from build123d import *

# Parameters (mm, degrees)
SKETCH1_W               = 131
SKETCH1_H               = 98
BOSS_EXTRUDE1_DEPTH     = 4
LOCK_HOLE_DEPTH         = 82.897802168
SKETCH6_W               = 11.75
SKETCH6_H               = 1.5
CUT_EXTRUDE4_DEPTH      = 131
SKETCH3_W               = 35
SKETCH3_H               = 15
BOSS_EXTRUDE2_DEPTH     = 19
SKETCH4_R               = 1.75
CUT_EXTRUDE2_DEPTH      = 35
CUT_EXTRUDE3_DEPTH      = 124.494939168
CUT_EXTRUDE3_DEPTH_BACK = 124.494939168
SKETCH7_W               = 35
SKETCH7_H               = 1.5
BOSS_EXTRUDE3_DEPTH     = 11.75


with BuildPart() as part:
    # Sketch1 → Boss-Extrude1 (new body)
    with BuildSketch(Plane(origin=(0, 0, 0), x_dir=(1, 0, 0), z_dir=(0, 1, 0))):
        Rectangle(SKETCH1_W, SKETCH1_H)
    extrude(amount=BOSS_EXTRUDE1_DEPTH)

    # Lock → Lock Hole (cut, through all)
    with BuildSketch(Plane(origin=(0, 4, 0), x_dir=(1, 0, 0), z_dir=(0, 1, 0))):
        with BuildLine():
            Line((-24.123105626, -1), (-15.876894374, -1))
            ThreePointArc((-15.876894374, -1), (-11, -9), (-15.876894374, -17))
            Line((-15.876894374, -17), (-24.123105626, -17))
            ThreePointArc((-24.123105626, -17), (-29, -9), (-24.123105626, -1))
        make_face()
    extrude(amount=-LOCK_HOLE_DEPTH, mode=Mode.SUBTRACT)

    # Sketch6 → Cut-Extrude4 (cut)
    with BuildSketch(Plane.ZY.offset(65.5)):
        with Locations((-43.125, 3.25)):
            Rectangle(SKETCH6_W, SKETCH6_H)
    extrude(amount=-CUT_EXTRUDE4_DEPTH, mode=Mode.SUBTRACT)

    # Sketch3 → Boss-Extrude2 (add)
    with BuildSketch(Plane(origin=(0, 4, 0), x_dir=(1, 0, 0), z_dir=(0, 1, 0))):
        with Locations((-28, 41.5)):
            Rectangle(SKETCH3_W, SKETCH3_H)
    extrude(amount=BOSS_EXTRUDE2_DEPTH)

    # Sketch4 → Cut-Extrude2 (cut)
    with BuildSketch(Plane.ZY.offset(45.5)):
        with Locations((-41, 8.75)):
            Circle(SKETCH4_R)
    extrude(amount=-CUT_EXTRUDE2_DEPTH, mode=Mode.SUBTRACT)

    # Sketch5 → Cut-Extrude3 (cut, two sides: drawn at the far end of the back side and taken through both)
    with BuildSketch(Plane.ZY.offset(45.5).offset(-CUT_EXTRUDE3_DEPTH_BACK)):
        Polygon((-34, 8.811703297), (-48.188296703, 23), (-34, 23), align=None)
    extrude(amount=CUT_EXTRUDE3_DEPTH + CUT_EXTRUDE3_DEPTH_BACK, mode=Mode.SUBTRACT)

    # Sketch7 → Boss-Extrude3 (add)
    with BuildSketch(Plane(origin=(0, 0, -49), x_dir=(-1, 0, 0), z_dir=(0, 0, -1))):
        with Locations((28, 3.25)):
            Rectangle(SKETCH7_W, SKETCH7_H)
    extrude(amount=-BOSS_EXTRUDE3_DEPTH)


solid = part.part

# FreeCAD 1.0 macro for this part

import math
import FreeCAD as App
import Part
import Sketcher

doc = App.newDocument("Part")
body = doc.addObject("PartDesign::Body", "Body")

sketch1 = body.newObject("Sketcher::SketchObject", "Sketch")
sketch1.AttachmentSupport = (doc.getObject("XZ_Plane"), [""])
sketch1.MapMode = "FlatFace"
sketch1.addGeometry([
    Part.LineSegment(App.Vector(-66, -49, 0), App.Vector(-66, 49, 0)),
    Part.LineSegment(App.Vector(-66, 49, 0), App.Vector(66, 49, 0)),
    Part.LineSegment(App.Vector(66, 49, 0), App.Vector(66, -49, 0)),
    Part.LineSegment(App.Vector(66, -49, 0), App.Vector(-66, -49, 0)),
], False)
sketch1.addConstraint([
    Sketcher.Constraint("Coincident", 0, 2, 1, 1),
    Sketcher.Constraint("Coincident", 1, 2, 2, 1),
    Sketcher.Constraint("Coincident", 2, 2, 3, 1),
    Sketcher.Constraint("Coincident", 3, 2, 0, 1),
    Sketcher.Constraint("Vertical", 0),
    Sketcher.Constraint("Horizontal", 1),
    Sketcher.Constraint("Vertical", 2),
    Sketcher.Constraint("Horizontal", 3),
    Sketcher.Constraint("Symmetric", 0, 2, 2, 2, -1, 1),
    Sketcher.Constraint("DistanceX", 1, 1, 1, 2, 131.0),
    Sketcher.Constraint("DistanceY", 0, 1, 0, 2, 98.0),
])
pad1 = body.newObject("PartDesign::Pad", "Pad")
pad1.Profile = sketch1
pad1.Length = 4
pad1.Reversed = True

sketch2 = body.newObject("Sketcher::SketchObject", "Sketch001")
sketch2.AttachmentSupport = (doc.getObject("XZ_Plane"), [""])
sketch2.MapMode = "FlatFace"
sketch2.AttachmentOffset = App.Placement(App.Vector(0, 0, -4), App.Rotation())
sketch2.addGeometry([
    Part.LineSegment(App.Vector(-16, 1, 0), App.Vector(-24, 1, 0)),
    Part.ArcOfCircle(Part.Circle(App.Vector(-20, 9, 0), App.Vector(0, 0, 1), 9), math.radians(117), math.radians(243)),
    Part.LineSegment(App.Vector(-24, 17, 0), App.Vector(-16, 17, 0)),
    Part.ArcOfCircle(Part.Circle(App.Vector(-20, 9, 0), App.Vector(0, 0, 1), 9), math.radians(-63), math.radians(63)),
], False)
sketch2.addConstraint([
    Sketcher.Constraint("Coincident", 0, 2, 1, 2),
    Sketcher.Constraint("Coincident", 1, 1, 2, 1),
    Sketcher.Constraint("Coincident", 2, 2, 3, 2),
    Sketcher.Constraint("Coincident", 3, 1, 0, 1),
    Sketcher.Constraint("Horizontal", 0),
    Sketcher.Constraint("Horizontal", 2),
    Sketcher.Constraint("Coincident", 3, 3, 1, 3),
    Sketcher.Constraint("Equal", 1, 3),
    Sketcher.Constraint("Vertical", 0, 2, 1, 1),
    Sketcher.Constraint("Radius", 1, 9.0),
    Sketcher.Constraint("DistanceX", 1, 3, -1, 1, 20.0),
    Sketcher.Constraint("DistanceY", -1, 1, 1, 3, 9.0),
    Sketcher.Constraint("DistanceY", -1, 1, 0, 2, 1.0),
])
pocket1 = body.newObject("PartDesign::Pocket", "Pocket")
pocket1.Profile = sketch2
pocket1.Type = "ThroughAll"
pocket1.Reversed = True

sketch3 = body.newObject("Sketcher::SketchObject", "Sketch002")
sketch3.AttachmentSupport = (doc.getObject("YZ_Plane"), [""])
sketch3.MapMode = "FlatFace"
sketch3.AttachmentOffset = App.Placement(App.Vector(0, 0, -65.5), App.Rotation())
sketch3.addGeometry([
    Part.LineSegment(App.Vector(4, -49, 0), App.Vector(2.5, -49, 0)),
    Part.LineSegment(App.Vector(2.5, -49, 0), App.Vector(2.5, -37.2, 0)),
    Part.LineSegment(App.Vector(2.5, -37.2, 0), App.Vector(4, -37.2, 0)),
    Part.LineSegment(App.Vector(4, -37.2, 0), App.Vector(4, -49, 0)),
], False)
sketch3.addConstraint([
    Sketcher.Constraint("Coincident", 0, 2, 1, 1),
    Sketcher.Constraint("Coincident", 1, 2, 2, 1),
    Sketcher.Constraint("Coincident", 2, 2, 3, 1),
    Sketcher.Constraint("Coincident", 3, 2, 0, 1),
    Sketcher.Constraint("Horizontal", 0),
    Sketcher.Constraint("Vertical", 1),
    Sketcher.Constraint("Horizontal", 2),
    Sketcher.Constraint("Vertical", 3),
    Sketcher.Constraint("DistanceX", 0, 2, 0, 1, 1.5),
    Sketcher.Constraint("DistanceY", 0, 2, -1, 1, 49.0),
    Sketcher.Constraint("DistanceX", -1, 1, 2, 2, 4.0),
    Sketcher.Constraint("DistanceY", 1, 1, 1, 2, 11.75),
])
pocket2 = body.newObject("PartDesign::Pocket", "Pocket001")
pocket2.Profile = sketch3
pocket2.Length = 131
pocket2.Reversed = True

sketch4 = body.newObject("Sketcher::SketchObject", "Sketch003")
sketch4.AttachmentSupport = (doc.getObject("XZ_Plane"), [""])
sketch4.MapMode = "FlatFace"
sketch4.AttachmentOffset = App.Placement(App.Vector(0, 0, -4), App.Rotation())
sketch4.addGeometry([
    Part.LineSegment(App.Vector(-46, -49, 0), App.Vector(-46, -34, 0)),
    Part.LineSegment(App.Vector(-46, -34, 0), App.Vector(-10, -34, 0)),
    Part.LineSegment(App.Vector(-10, -34, 0), App.Vector(-10, -49, 0)),
    Part.LineSegment(App.Vector(-10, -49, 0), App.Vector(-46, -49, 0)),
], False)
sketch4.addConstraint([
    Sketcher.Constraint("Coincident", 0, 2, 1, 1),
    Sketcher.Constraint("Coincident", 1, 2, 2, 1),
    Sketcher.Constraint("Coincident", 2, 2, 3, 1),
    Sketcher.Constraint("Coincident", 3, 2, 0, 1),
    Sketcher.Constraint("Vertical", 0),
    Sketcher.Constraint("Horizontal", 1),
    Sketcher.Constraint("Vertical", 2),
    Sketcher.Constraint("Horizontal", 3),
    Sketcher.Constraint("DistanceX", 1, 1, 1, 2, 35.0),
    Sketcher.Constraint("DistanceY", 0, 1, 0, 2, 15.0),
    Sketcher.Constraint("DistanceY", 0, 2, -1, 1, 34.0),
    Sketcher.Constraint("DistanceX", 0, 2, -1, 1, 45.5),
])
pad2 = body.newObject("PartDesign::Pad", "Pad001")
pad2.Profile = sketch4
pad2.Length = 19
pad2.Reversed = True

sketch5 = body.newObject("Sketcher::SketchObject", "Sketch004")
sketch5.AttachmentSupport = (doc.getObject("YZ_Plane"), [""])
sketch5.MapMode = "FlatFace"
sketch5.AttachmentOffset = App.Placement(App.Vector(0, 0, -45.5), App.Rotation())
sketch5.addGeometry(Part.Circle(App.Vector(8.8, -41, 0), App.Vector(0, 0, 1), 1.8), False)
sketch5.addConstraint([
    Sketcher.Constraint("Diameter", 0, 3.5),
    Sketcher.Constraint("DistanceY", 0, 3, -1, 1, 41.0),
    Sketcher.Constraint("DistanceX", -1, 1, 0, 3, 8.75),
])
pocket3 = body.newObject("PartDesign::Pocket", "Pocket002")
pocket3.Profile = sketch5
pocket3.Length = 35
pocket3.Reversed = True

sketch6 = body.newObject("Sketcher::SketchObject", "Sketch005")
sketch6.AttachmentSupport = (doc.getObject("YZ_Plane"), [""])
sketch6.MapMode = "FlatFace"
sketch6.AttachmentOffset = App.Placement(App.Vector(0, 0, -45.5), App.Rotation())
sketch6.addGeometry([
    Part.LineSegment(App.Vector(23, -48, 0), App.Vector(9, -34, 0)),
    Part.LineSegment(App.Vector(9, -34, 0), App.Vector(23, -34, 0)),
    Part.LineSegment(App.Vector(23, -34, 0), App.Vector(23, -48, 0)),
], False)
sketch6.addConstraint([
    Sketcher.Constraint("Coincident", 0, 2, 1, 1),
    Sketcher.Constraint("Coincident", 1, 2, 2, 1),
    Sketcher.Constraint("Coincident", 2, 2, 0, 1),
    Sketcher.Constraint("Horizontal", 1),
    Sketcher.Constraint("Vertical", 2),
    Sketcher.Constraint("Equal", 1, 2),
    Sketcher.Constraint("DistanceY", 0, 2, -1, 1, 34.0),
    Sketcher.Constraint("DistanceX", -1, 1, 1, 2, 23.0),
    Sketcher.Constraint("Distance", 0, 20.065282),
])
pocket4 = body.newObject("PartDesign::Pocket", "Pocket003")
pocket4.Profile = sketch6
pocket4.Type = "ThroughAll"
pocket4.Midplane = True

sketch7 = body.newObject("Sketcher::SketchObject", "Sketch006")
sketch7.AttachmentSupport = (doc.getObject("XY_Plane"), [""])
sketch7.MapMode = "FlatFace"
sketch7.AttachmentOffset = App.Placement(App.Vector(0, 0, -49), App.Rotation())
sketch7.addGeometry([
    Part.LineSegment(App.Vector(-10.5, 4, 0), App.Vector(-10.5, 2.5, 0)),
    Part.LineSegment(App.Vector(-10.5, 2.5, 0), App.Vector(-45.5, 2.5, 0)),
    Part.LineSegment(App.Vector(-45.5, 2.5, 0), App.Vector(-45.5, 4, 0)),
    Part.LineSegment(App.Vector(-45.5, 4, 0), App.Vector(-10.5, 4, 0)),
], False)
sketch7.addConstraint([
    Sketcher.Constraint("Coincident", 0, 2, 1, 1),
    Sketcher.Constraint("Coincident", 1, 2, 2, 1),
    Sketcher.Constraint("Coincident", 2, 2, 3, 1),
    Sketcher.Constraint("Coincident", 3, 2, 0, 1),
    Sketcher.Constraint("Vertical", 0),
    Sketcher.Constraint("Horizontal", 1),
    Sketcher.Constraint("Vertical", 2),
    Sketcher.Constraint("Horizontal", 3),
    Sketcher.Constraint("DistanceX", 1, 2, 1, 1, 35.0),
    Sketcher.Constraint("DistanceY", 0, 2, 0, 1, 1.5),
    Sketcher.Constraint("DistanceY", -1, 1, 2, 2, 4.0),
    Sketcher.Constraint("DistanceX", 0, 2, -1, 1, 10.5),
])
pad3 = body.newObject("PartDesign::Pad", "Pad002")
pad3.Profile = sketch7
pad3.Length = 11.75

doc.recompute()
